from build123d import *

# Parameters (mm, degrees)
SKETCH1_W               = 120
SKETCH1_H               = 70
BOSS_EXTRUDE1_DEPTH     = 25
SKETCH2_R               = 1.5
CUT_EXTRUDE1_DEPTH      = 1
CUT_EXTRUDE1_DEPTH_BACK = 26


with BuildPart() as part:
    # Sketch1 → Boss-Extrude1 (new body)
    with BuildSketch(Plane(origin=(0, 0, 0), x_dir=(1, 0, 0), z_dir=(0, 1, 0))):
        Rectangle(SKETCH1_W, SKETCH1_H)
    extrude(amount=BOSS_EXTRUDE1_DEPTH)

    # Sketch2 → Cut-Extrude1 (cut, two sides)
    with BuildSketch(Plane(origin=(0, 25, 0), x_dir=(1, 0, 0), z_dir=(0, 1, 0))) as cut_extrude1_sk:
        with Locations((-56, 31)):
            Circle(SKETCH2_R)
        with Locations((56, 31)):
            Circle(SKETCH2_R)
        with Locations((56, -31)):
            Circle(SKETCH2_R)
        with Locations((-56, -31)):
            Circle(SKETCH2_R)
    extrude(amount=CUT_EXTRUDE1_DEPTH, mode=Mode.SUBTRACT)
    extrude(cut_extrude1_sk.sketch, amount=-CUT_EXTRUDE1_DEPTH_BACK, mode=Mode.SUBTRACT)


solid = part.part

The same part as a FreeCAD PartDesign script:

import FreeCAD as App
import Part
import Sketcher

doc = App.newDocument("Part")
body = doc.addObject("PartDesign::Body", "Body")

sketch1 = body.newObject("Sketcher::SketchObject", "Sketch")
sketch1.AttachmentSupport = (doc.getObject("XZ_Plane"), [""])
sketch1.MapMode = "FlatFace"
sketch1.addGeometry([
    Part.LineSegment(App.Vector(-60, -35, 0), App.Vector(-60, 35, 0)),
    Part.LineSegment(App.Vector(-60, 35, 0), App.Vector(60, 35, 0)),
    Part.LineSegment(App.Vector(60, 35, 0), App.Vector(60, -35, 0)),
    Part.LineSegment(App.Vector(60, -35, 0), App.Vector(-60, -35, 0)),
], False)
sketch1.addConstraint([
    Sketcher.Constraint("Coincident", 0, 2, 1, 1),
    Sketcher.Constraint("Coincident", 1, 2, 2, 1),
    Sketcher.Constraint("Coincident", 2, 2, 3, 1),
    Sketcher.Constraint("Coincident", 3, 2, 0, 1),
    Sketcher.Constraint("Vertical", 0),
    Sketcher.Constraint("Horizontal", 1),
    Sketcher.Constraint("Vertical", 2),
    Sketcher.Constraint("Horizontal", 3),
    Sketcher.Constraint("Symmetric", 0, 2, 2, 2, -1, 1),
    Sketcher.Constraint("DistanceX", 1, 1, 1, 2, 120.0),
    Sketcher.Constraint("DistanceY", 0, 1, 0, 2, 70.0),
])
pad1 = body.newObject("PartDesign::Pad", "Pad")
pad1.Profile = sketch1
pad1.Length = 25
pad1.Reversed = True

sketch2 = body.newObject("Sketcher::SketchObject", "Sketch001")
sketch2.AttachmentSupport = (doc.getObject("XZ_Plane"), [""])
sketch2.MapMode = "FlatFace"
sketch2.AttachmentOffset = App.Placement(App.Vector(0, 0, -25), App.Rotation())
sketch2.addGeometry([
    Part.Circle(App.Vector(-56, -31, 0), App.Vector(0, 0, 1), 1.5),
    Part.Circle(App.Vector(56, -31, 0), App.Vector(0, 0, 1), 1.5),
    Part.Circle(App.Vector(56, 31, 0), App.Vector(0, 0, 1), 1.5),
    Part.Circle(App.Vector(-56, 31, 0), App.Vector(0, 0, 1), 1.5),
], False)
sketch2.addConstraint([
    Sketcher.Constraint("Equal", 0, 1),
    Sketcher.Constraint("Equal", 1, 2),
    Sketcher.Constraint("Equal", 2, 3),
    Sketcher.Constraint("Symmetric", 0, 3, 2, 3, -1, 1),
    Sketcher.Constraint("Symmetric", 1, 3, 3, 3, -1, 1),
    Sketcher.Constraint("Symmetric", 0, 3, 1, 3, -2),
    Sketcher.Constraint("Diameter", 0, 3.0),
    Sketcher.Constraint("DistanceX", 0, 3, -1, 1, 56.0),
    Sketcher.Constraint("DistanceY", 0, 3, -1, 1, 31.0),
])
pocket1 = body.newObject("PartDesign::Pocket", "Pocket")
pocket1.Profile = sketch2
pocket1.Type = "ThroughAll"
pocket1.Midplane = True

doc.recompute()
